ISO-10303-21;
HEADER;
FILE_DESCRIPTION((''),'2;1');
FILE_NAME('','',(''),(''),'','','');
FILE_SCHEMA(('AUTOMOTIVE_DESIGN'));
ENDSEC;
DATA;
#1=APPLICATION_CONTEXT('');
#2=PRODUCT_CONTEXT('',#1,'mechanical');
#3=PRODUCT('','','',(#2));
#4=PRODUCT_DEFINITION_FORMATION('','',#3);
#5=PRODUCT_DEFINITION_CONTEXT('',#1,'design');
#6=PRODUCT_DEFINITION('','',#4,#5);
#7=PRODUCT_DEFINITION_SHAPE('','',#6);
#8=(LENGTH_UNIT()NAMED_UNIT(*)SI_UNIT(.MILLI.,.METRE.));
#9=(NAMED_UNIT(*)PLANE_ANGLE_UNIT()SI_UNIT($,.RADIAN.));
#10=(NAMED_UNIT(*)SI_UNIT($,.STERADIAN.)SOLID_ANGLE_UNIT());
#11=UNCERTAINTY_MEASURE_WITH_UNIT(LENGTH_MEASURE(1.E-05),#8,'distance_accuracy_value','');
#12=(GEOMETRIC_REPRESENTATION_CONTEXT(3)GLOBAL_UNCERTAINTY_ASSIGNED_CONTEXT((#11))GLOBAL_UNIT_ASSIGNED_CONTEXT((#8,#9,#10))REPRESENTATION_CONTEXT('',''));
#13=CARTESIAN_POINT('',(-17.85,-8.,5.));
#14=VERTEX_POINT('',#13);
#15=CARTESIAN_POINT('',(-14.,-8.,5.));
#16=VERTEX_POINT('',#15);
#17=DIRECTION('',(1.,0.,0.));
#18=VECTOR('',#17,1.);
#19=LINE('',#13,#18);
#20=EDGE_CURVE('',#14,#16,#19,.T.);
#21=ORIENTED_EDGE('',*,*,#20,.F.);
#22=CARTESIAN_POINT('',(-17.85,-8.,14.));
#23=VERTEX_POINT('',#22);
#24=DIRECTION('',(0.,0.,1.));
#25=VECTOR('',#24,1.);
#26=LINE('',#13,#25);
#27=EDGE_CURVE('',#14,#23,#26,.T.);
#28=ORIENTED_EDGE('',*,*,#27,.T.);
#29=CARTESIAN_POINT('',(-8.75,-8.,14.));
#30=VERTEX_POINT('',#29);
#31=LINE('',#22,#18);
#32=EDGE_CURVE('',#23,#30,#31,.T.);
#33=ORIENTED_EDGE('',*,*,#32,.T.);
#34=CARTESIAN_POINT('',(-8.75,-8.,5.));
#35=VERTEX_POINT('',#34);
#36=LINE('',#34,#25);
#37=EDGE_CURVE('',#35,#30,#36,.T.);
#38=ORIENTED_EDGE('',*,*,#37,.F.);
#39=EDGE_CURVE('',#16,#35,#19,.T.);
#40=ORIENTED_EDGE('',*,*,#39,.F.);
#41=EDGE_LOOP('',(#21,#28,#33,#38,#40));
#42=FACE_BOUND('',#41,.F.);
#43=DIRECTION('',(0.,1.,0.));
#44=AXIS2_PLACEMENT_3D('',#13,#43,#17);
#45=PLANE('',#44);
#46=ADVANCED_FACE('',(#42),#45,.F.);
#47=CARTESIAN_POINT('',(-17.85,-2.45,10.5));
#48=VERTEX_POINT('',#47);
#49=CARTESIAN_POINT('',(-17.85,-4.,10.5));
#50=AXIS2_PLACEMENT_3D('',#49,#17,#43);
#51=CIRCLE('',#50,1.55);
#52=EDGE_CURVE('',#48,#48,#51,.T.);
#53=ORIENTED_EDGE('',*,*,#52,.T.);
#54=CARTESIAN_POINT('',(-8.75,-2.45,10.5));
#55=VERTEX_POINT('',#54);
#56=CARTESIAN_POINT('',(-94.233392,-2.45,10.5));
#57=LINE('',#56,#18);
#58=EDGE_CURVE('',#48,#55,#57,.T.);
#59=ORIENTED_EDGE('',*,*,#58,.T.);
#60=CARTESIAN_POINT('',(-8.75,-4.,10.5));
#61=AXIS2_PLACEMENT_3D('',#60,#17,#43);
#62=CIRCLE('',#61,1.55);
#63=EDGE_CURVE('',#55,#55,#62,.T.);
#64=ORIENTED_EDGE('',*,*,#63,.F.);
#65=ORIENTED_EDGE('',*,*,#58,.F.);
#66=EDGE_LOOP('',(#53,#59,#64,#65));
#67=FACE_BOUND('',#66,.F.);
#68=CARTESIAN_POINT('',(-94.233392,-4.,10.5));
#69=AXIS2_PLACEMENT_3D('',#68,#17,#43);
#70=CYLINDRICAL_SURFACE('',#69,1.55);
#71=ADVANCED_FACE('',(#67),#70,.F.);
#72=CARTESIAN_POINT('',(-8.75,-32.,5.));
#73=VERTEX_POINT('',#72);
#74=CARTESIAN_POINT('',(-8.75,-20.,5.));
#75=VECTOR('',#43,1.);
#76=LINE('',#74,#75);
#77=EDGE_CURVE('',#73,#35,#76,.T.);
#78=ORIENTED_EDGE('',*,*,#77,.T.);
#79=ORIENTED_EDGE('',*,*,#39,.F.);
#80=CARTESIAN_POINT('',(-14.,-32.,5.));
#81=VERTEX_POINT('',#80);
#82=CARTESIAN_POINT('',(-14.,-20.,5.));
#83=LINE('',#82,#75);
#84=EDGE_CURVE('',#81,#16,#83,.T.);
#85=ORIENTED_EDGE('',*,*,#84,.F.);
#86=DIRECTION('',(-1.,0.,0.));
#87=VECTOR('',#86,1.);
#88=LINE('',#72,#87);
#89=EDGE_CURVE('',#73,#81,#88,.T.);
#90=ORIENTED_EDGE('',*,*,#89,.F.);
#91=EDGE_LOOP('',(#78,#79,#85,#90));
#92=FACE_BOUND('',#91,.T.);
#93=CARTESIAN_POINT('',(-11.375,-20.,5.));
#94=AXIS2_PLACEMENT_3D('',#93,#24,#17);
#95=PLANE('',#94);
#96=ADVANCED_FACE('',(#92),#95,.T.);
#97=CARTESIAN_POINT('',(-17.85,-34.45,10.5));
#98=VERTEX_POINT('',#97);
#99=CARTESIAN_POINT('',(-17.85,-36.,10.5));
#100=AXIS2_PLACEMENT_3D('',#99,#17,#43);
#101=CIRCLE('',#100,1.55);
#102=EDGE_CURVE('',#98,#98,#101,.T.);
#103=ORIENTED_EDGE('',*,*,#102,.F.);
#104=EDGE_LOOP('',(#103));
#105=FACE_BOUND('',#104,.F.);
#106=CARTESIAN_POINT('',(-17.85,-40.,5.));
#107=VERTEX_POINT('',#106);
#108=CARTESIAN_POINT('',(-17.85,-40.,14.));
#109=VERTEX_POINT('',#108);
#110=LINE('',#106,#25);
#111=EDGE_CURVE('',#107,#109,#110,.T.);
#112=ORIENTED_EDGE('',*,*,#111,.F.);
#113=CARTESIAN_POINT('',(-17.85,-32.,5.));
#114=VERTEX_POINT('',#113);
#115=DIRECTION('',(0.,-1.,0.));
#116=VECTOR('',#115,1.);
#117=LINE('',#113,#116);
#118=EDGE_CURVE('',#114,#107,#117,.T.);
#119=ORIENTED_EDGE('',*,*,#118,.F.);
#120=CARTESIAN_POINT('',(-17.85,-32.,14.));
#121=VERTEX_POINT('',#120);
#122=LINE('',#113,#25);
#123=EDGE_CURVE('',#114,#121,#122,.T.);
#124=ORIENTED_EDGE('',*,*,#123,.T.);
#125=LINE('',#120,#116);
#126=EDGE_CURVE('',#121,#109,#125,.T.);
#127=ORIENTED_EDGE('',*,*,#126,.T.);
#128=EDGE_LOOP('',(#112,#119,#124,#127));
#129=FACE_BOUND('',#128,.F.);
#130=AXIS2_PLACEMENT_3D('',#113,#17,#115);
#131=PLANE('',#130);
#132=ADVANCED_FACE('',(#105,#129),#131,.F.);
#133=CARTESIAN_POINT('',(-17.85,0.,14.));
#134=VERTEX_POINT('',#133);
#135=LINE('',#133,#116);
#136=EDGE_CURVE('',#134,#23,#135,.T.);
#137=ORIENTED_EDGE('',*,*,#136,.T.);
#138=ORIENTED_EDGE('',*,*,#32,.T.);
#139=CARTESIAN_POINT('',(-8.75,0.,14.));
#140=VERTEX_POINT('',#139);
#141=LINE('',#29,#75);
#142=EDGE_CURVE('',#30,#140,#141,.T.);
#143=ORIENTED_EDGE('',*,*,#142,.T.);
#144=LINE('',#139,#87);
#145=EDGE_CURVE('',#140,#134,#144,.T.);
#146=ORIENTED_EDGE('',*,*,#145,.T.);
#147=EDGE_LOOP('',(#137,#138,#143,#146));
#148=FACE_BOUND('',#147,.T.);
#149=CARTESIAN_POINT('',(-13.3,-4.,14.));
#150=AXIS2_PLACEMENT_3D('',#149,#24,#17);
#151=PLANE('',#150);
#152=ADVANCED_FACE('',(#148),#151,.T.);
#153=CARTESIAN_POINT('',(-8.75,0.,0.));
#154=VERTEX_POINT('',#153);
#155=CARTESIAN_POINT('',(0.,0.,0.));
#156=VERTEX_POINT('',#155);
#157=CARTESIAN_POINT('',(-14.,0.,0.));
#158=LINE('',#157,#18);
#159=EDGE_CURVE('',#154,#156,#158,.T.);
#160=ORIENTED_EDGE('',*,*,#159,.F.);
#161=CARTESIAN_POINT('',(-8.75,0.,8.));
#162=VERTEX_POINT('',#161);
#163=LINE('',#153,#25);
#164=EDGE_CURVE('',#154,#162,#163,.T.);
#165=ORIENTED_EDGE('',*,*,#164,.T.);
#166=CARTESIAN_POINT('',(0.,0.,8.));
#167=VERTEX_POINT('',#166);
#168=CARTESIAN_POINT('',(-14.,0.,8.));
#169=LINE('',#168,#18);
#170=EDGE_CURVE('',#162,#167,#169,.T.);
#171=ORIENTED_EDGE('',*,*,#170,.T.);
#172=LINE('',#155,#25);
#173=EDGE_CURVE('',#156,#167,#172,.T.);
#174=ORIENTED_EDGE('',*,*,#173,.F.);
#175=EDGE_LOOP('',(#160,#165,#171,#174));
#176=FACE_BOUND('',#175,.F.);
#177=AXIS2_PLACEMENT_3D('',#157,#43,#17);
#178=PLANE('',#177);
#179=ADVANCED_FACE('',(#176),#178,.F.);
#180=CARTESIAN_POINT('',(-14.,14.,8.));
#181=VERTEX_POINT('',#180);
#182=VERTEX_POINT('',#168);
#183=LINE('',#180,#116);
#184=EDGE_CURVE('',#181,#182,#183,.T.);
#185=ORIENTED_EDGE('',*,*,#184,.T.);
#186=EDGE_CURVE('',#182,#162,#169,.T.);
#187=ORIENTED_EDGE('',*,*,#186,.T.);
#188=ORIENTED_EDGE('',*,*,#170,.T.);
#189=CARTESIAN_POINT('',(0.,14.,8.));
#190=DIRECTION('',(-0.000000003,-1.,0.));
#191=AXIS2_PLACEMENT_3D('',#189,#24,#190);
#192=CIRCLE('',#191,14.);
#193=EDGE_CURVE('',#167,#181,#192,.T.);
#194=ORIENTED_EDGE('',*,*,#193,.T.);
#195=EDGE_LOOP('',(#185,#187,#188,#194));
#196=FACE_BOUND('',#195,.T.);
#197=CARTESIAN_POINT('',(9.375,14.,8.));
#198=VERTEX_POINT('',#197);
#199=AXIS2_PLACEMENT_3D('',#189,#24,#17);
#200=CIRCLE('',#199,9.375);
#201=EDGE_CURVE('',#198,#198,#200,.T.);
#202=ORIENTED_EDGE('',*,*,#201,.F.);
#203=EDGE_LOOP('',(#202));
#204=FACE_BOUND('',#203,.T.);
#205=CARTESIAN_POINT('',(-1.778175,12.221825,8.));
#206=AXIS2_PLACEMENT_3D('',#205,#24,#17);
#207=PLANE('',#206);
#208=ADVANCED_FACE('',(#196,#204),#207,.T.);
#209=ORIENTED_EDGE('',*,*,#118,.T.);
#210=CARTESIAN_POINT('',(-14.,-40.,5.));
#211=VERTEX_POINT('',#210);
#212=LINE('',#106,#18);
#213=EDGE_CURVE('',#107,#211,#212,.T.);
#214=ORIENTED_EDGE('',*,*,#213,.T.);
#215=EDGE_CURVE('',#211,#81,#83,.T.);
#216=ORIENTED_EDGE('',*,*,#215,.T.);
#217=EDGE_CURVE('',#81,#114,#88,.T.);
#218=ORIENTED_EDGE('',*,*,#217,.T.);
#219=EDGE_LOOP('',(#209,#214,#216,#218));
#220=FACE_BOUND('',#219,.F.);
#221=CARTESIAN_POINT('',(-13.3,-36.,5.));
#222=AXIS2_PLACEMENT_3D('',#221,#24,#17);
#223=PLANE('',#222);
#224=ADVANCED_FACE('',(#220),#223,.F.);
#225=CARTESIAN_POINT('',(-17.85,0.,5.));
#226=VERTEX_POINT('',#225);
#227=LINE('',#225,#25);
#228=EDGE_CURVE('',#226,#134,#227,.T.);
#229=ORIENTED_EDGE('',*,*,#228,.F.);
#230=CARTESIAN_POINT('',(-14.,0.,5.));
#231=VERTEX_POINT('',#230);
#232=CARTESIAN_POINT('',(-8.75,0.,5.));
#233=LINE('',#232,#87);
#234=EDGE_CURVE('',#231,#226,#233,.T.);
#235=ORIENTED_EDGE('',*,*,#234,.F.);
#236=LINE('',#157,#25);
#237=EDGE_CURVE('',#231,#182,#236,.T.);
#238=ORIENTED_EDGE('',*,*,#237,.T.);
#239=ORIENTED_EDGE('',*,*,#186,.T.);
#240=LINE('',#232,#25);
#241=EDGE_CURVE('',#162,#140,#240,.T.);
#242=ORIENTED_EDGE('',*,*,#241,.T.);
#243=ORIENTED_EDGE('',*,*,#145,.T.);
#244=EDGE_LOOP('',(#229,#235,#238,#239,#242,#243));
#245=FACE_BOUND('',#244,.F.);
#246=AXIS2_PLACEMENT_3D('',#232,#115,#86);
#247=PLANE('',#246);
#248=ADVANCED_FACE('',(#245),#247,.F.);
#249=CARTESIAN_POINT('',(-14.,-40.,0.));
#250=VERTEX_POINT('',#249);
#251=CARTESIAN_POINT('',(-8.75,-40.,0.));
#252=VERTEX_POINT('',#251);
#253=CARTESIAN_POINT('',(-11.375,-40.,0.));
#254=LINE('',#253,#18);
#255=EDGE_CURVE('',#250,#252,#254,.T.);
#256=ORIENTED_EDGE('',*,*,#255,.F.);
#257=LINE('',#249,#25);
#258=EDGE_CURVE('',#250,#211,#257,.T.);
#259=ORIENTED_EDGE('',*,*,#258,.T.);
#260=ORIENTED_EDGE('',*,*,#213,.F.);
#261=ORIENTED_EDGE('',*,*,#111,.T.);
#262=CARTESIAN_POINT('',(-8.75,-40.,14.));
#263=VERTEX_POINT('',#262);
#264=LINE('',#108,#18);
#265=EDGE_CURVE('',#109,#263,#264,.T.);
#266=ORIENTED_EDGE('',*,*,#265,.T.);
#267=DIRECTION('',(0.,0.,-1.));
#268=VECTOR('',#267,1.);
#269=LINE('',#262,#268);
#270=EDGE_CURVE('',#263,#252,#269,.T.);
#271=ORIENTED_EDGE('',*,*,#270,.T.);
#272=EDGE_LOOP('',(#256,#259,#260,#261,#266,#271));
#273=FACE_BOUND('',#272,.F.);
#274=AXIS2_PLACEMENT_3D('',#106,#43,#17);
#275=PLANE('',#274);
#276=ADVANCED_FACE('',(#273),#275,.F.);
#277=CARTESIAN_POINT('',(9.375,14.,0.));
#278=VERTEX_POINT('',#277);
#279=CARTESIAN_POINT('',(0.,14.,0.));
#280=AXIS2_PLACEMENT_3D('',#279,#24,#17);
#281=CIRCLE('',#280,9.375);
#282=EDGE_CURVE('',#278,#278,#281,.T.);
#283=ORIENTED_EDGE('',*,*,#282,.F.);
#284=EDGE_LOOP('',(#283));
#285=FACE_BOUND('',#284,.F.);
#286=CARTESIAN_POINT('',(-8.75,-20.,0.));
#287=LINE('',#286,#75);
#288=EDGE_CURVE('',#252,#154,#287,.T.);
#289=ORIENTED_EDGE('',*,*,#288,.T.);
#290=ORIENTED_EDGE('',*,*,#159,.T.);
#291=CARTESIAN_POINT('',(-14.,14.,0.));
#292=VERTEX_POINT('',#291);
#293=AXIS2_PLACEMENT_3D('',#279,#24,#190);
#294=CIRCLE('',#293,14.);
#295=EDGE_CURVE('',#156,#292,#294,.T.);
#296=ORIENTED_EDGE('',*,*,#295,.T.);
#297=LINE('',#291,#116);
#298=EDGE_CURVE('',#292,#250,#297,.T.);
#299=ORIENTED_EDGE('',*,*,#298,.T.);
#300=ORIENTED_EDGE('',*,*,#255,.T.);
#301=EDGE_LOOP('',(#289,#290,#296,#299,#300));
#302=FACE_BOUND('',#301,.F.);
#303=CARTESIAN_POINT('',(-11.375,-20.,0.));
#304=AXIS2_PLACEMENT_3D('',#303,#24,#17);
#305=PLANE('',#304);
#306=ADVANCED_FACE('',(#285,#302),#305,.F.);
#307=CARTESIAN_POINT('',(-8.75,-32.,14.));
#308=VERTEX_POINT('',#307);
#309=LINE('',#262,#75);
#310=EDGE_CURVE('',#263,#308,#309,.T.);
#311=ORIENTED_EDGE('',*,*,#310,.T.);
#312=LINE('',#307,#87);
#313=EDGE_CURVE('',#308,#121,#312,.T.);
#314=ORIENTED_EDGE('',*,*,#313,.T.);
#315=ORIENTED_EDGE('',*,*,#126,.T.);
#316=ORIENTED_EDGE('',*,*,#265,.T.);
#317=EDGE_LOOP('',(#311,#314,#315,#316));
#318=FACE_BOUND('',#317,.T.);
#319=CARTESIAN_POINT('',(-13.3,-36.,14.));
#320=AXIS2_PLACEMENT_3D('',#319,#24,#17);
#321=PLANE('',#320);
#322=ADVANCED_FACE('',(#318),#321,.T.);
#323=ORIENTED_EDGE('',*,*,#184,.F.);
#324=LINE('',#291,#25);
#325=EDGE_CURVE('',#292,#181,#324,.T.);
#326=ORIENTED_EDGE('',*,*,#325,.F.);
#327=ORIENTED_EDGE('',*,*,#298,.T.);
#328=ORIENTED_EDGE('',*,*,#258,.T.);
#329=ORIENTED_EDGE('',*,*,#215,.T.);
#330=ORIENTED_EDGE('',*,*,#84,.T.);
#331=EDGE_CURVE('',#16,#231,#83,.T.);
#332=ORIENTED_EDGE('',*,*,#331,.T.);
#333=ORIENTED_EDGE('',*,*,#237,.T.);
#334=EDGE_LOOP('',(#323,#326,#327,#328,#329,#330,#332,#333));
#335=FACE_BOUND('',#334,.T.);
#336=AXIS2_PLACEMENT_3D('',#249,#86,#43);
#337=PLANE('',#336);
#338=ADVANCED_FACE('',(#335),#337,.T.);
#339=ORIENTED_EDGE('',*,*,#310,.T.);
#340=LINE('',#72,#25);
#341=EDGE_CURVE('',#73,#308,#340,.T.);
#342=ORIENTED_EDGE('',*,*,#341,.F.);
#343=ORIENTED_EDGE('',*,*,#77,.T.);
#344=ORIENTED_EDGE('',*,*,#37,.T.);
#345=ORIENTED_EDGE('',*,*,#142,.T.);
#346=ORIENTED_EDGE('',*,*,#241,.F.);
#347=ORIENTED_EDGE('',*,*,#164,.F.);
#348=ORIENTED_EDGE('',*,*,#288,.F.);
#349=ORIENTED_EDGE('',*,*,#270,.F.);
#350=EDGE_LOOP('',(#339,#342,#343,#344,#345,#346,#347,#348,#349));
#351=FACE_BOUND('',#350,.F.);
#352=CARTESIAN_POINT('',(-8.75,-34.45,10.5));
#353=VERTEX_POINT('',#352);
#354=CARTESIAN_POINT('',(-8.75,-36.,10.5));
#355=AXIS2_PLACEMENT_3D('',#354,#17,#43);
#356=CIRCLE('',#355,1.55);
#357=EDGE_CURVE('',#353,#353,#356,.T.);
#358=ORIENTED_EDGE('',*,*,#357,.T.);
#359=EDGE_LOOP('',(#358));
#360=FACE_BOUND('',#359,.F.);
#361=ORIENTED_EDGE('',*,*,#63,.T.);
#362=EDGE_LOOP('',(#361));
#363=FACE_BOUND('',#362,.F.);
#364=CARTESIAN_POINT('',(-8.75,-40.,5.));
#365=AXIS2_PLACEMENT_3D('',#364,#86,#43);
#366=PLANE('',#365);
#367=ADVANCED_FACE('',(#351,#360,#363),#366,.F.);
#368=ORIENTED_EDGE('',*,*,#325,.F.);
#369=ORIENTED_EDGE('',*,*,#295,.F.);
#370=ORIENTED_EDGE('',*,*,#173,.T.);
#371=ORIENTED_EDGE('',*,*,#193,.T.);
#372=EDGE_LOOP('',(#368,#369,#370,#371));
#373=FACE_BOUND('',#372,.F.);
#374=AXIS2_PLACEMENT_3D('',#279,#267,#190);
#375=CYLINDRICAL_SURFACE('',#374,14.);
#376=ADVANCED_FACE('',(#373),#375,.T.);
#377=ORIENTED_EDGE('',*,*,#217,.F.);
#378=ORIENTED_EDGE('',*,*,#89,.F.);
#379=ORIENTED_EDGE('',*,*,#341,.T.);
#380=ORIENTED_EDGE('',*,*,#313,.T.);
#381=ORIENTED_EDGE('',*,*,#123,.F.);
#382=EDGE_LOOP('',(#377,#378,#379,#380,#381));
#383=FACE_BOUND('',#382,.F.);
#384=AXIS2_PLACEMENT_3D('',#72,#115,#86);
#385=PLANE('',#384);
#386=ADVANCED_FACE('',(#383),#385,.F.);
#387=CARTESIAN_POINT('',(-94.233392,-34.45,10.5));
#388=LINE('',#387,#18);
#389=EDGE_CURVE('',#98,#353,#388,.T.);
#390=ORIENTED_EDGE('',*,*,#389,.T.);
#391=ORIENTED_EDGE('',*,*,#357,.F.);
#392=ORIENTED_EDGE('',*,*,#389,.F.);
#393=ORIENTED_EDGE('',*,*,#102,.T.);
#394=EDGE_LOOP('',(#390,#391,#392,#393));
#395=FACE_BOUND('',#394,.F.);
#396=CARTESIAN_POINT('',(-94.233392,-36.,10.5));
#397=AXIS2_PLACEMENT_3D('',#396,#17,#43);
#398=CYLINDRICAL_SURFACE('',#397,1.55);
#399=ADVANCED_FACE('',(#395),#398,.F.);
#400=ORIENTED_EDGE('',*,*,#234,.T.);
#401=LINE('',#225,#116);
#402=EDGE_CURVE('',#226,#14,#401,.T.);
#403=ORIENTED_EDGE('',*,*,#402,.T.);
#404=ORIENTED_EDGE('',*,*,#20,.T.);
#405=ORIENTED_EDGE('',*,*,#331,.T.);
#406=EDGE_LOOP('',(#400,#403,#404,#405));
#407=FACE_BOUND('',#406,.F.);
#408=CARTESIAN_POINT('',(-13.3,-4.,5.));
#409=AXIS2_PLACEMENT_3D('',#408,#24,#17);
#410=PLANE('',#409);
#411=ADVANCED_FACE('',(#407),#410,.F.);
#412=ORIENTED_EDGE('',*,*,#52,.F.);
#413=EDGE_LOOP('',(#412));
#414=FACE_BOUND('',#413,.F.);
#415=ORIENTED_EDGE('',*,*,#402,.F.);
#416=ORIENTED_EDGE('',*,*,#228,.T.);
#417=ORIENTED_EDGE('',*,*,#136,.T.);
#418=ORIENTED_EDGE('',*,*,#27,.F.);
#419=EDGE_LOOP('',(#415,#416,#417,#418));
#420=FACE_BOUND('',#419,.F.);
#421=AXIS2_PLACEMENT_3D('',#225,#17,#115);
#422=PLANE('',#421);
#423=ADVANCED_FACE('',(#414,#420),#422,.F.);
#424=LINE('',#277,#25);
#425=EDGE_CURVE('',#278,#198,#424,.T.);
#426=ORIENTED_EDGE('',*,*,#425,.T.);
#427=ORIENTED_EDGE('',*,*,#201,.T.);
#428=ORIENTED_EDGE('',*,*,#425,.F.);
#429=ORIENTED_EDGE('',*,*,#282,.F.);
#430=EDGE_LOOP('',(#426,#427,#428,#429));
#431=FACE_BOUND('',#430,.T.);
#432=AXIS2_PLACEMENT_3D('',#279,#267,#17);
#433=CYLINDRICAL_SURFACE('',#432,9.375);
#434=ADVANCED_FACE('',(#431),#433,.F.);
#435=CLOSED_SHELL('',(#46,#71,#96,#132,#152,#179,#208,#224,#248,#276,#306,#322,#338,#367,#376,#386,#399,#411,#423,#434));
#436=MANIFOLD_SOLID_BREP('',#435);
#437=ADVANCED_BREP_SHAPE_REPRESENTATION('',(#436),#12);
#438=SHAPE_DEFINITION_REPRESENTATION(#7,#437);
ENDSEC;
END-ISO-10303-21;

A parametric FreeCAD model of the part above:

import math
import FreeCAD as App
import Part
import Sketcher
from FreeCAD import Vector
Q = App.Units.Quantity


def add_polygon(sketch, points):
    """Adds a closed chain of lines whose ends are joined by coincident constraints."""
    first, n = sketch.GeometryCount, len(points)
    for a, b in zip(points, points[1:] + points[:1]):
        sketch.addGeometry(Part.LineSegment(App.Vector(*a, 0), App.Vector(*b, 0)), False)
    for i in range(n):
        sketch.addConstraint(Sketcher.Constraint("Coincident", first + i, 2, first + (i + 1) % n, 1))

doc = App.newDocument("Part")
params = doc.addObject("Spreadsheet::Sheet", "Params")
for row, (alias, value) in enumerate([
    ("sketch1_radius", "14 mm"),
    ("sketch1_diameter", "18.75 mm"),
    ("pad1_length", "8 mm"),
    ("sketch2_height", "40 mm"),
    ("sketch2_width", "5.25 mm"),
    ("pad2_length", "5 mm"),
    ("sketch3_height", "8 mm"),
    ("sketch3_width", "9.1 mm"),
    ("pad3_length", "9 mm"),
    ("sketch4_diameter", "3.1 mm"),
    ("hole_diameter", "3.1 mm"),
], start=1):
    params.set(f"A{row}", alias)
    params.set(f"B{row}", "=" + value)
    params.setAlias(f"B{row}", alias)

body = doc.addObject("PartDesign::Body", "Body")

sketch1 = body.newObject("Sketcher::SketchObject", "Sketch")
sketch1.AttachmentSupport = (doc.getObject("XY_Plane"), [""])
sketch1.MapMode = "FlatFace"
sketch1.addGeometry([
    Part.LineSegment(Vector(-14, 0, 0), Vector(0, 0, 0)),
    Part.ArcOfCircle(Part.Circle(Vector(0, 14, 0), Vector(0, 0, 1), 14), math.radians(-90), math.radians(180)),
    Part.LineSegment(Vector(-14, 14, 0), Vector(-14, 0, 0)),
    Part.Circle(Vector(0, 14, 0), Vector(0, 0, 1), 9),
], False)
sketch1.addConstraint([
    Sketcher.Constraint("Tangent", 0, 2, 1, 1),
    Sketcher.Constraint("Tangent", 1, 2, 2, 1),
    Sketcher.Constraint("Coincident", 2, 2, 0, 1),
    Sketcher.Constraint("Horizontal", 0),
    Sketcher.Constraint("Vertical", 2),
    Sketcher.Constraint("Coincident", 0, 2, -1, 1),
    Sketcher.Constraint("Coincident", 3, 3, 1, 3),
    Sketcher.Constraint("Radius", 1, Q("14 mm")),
    Sketcher.Constraint("Diameter", 3, Q("18.75 mm")),
])
sketch1.setExpression("Constraints[7]", "Params.sketch1_radius")
sketch1.setExpression("Constraints[8]", "Params.sketch1_diameter")
pad1 = body.newObject("PartDesign::Pad", "Pad")
pad1.Profile = sketch1
pad1.setExpression("Length", "Params.pad1_length")

sketch2 = body.newObject("Sketcher::SketchObject", "Sketch001")
sketch2.AttachmentSupport = (doc.getObject("XY_Plane"), [""])
sketch2.MapMode = "FlatFace"
add_polygon(sketch2, [(-14, 0), (-14, -40), (-9, -40), (-9, 0)])
sketch2.addConstraint([
    Sketcher.Constraint("Vertical", 0),
    Sketcher.Constraint("Horizontal", 1),
    Sketcher.Constraint("Vertical", 2),
    Sketcher.Constraint("Horizontal", 3),
    Sketcher.Constraint("PointOnObject", 2, 2, -1),
    Sketcher.Constraint("DistanceY", 0, 2, 0, 1, Q("40 mm")),
    Sketcher.Constraint("DistanceX", 0, 2, -1, 1, Q("14 mm")),
    Sketcher.Constraint("DistanceX", 1, 1, 1, 2, Q("5.25 mm")),
])
sketch2.setExpression("Constraints[9]", "Params.sketch2_height")
sketch2.setExpression("Constraints[11]", "Params.sketch2_width")
pad2 = body.newObject("PartDesign::Pad", "Pad001")
pad2.Profile = sketch2
pad2.setExpression("Length", "Params.pad2_length")

sketch3 = body.newObject("Sketcher::SketchObject", "Sketch002")
sketch3.AttachmentSupport = (doc.getObject("XY_Plane"), [""])
sketch3.MapMode = "FlatFace"
sketch3.AttachmentOffset = App.Placement(Vector(0, 0, 5), App.Rotation())
add_polygon(sketch3, [(-9, -40), (-9, -32), (-18, -32), (-18, -40)])
add_polygon(sketch3, [(-9, 0), (-18, 0), (-18, -8), (-9, -8)])
sketch3.addConstraint([
    Sketcher.Constraint("Vertical", 0),
    Sketcher.Constraint("Horizontal", 1),
    Sketcher.Constraint("Vertical", 2),
    Sketcher.Constraint("Horizontal", 3),
    Sketcher.Constraint("Horizontal", 4),
    Sketcher.Constraint("Vertical", 5),
    Sketcher.Constraint("Horizontal", 6),
    Sketcher.Constraint("Vertical", 7),
    Sketcher.Constraint("PointOnObject", 4, 2, -1),
    Sketcher.Constraint("Vertical", 2, 2, 4, 2),
    Sketcher.Constraint("Vertical", 3, 2, 6, 2),
    Sketcher.Constraint("Equal", 2, 5),
    Sketcher.Constraint("DistanceY", 0, 1, 0, 2, Q("8 mm")),
    Sketcher.Constraint("DistanceX", 1, 2, 1, 1, Q("9.1 mm")),
    Sketcher.Constraint("DistanceY", 0, 2, -1, 1, Q("32 mm")),
    Sketcher.Constraint("DistanceX", 0, 2, -1, 1, Q("8.75 mm")),
])
sketch3.setExpression("Constraints[20]", "Params.sketch3_height")
sketch3.setExpression("Constraints[21]", "Params.sketch3_width")
pad3 = body.newObject("PartDesign::Pad", "Pad002")
pad3.Profile = sketch3
pad3.setExpression("Length", "Params.pad3_length")

sketch4 = body.newObject("Sketcher::SketchObject", "Sketch003")
sketch4.AttachmentSupport = (doc.getObject("YZ_Plane"), [""])
sketch4.MapMode = "FlatFace"
sketch4.AttachmentOffset = App.Placement(Vector(0, 0, -17.85), App.Rotation())
sketch4.addGeometry([
    Part.Circle(Vector(-4, 10.5, 0), Vector(0, 0, 1), 1.6),
    Part.Circle(Vector(-36, 10.5, 0), Vector(0, 0, 1), 1.6),
], False)
sketch4.addConstraint([
    Sketcher.Constraint("Equal", 0, 1),
    Sketcher.Constraint("Horizontal", 0, 3, 1, 3),
    Sketcher.Constraint("Diameter", 0, Q("3.1 mm")),
    Sketcher.Constraint("DistanceX", 0, 3, -1, 1, Q("4 mm")),
    Sketcher.Constraint("DistanceX", 1, 3, -1, 1, Q("36 mm")),
    Sketcher.Constraint("DistanceY", -1, 1, 0, 3, Q("10.5 mm")),
])
sketch4.setExpression("Constraints[2]", "Params.sketch4_diameter")
doc.recompute()
hole = body.newObject("PartDesign::Hole", "Hole")
hole.Profile = sketch4
hole.ThreadType = "None"
hole.setExpression("Diameter", "Params.hole_diameter")
hole.DepthType = "ThroughAll"
hole.Reversed = True

doc.recompute()
